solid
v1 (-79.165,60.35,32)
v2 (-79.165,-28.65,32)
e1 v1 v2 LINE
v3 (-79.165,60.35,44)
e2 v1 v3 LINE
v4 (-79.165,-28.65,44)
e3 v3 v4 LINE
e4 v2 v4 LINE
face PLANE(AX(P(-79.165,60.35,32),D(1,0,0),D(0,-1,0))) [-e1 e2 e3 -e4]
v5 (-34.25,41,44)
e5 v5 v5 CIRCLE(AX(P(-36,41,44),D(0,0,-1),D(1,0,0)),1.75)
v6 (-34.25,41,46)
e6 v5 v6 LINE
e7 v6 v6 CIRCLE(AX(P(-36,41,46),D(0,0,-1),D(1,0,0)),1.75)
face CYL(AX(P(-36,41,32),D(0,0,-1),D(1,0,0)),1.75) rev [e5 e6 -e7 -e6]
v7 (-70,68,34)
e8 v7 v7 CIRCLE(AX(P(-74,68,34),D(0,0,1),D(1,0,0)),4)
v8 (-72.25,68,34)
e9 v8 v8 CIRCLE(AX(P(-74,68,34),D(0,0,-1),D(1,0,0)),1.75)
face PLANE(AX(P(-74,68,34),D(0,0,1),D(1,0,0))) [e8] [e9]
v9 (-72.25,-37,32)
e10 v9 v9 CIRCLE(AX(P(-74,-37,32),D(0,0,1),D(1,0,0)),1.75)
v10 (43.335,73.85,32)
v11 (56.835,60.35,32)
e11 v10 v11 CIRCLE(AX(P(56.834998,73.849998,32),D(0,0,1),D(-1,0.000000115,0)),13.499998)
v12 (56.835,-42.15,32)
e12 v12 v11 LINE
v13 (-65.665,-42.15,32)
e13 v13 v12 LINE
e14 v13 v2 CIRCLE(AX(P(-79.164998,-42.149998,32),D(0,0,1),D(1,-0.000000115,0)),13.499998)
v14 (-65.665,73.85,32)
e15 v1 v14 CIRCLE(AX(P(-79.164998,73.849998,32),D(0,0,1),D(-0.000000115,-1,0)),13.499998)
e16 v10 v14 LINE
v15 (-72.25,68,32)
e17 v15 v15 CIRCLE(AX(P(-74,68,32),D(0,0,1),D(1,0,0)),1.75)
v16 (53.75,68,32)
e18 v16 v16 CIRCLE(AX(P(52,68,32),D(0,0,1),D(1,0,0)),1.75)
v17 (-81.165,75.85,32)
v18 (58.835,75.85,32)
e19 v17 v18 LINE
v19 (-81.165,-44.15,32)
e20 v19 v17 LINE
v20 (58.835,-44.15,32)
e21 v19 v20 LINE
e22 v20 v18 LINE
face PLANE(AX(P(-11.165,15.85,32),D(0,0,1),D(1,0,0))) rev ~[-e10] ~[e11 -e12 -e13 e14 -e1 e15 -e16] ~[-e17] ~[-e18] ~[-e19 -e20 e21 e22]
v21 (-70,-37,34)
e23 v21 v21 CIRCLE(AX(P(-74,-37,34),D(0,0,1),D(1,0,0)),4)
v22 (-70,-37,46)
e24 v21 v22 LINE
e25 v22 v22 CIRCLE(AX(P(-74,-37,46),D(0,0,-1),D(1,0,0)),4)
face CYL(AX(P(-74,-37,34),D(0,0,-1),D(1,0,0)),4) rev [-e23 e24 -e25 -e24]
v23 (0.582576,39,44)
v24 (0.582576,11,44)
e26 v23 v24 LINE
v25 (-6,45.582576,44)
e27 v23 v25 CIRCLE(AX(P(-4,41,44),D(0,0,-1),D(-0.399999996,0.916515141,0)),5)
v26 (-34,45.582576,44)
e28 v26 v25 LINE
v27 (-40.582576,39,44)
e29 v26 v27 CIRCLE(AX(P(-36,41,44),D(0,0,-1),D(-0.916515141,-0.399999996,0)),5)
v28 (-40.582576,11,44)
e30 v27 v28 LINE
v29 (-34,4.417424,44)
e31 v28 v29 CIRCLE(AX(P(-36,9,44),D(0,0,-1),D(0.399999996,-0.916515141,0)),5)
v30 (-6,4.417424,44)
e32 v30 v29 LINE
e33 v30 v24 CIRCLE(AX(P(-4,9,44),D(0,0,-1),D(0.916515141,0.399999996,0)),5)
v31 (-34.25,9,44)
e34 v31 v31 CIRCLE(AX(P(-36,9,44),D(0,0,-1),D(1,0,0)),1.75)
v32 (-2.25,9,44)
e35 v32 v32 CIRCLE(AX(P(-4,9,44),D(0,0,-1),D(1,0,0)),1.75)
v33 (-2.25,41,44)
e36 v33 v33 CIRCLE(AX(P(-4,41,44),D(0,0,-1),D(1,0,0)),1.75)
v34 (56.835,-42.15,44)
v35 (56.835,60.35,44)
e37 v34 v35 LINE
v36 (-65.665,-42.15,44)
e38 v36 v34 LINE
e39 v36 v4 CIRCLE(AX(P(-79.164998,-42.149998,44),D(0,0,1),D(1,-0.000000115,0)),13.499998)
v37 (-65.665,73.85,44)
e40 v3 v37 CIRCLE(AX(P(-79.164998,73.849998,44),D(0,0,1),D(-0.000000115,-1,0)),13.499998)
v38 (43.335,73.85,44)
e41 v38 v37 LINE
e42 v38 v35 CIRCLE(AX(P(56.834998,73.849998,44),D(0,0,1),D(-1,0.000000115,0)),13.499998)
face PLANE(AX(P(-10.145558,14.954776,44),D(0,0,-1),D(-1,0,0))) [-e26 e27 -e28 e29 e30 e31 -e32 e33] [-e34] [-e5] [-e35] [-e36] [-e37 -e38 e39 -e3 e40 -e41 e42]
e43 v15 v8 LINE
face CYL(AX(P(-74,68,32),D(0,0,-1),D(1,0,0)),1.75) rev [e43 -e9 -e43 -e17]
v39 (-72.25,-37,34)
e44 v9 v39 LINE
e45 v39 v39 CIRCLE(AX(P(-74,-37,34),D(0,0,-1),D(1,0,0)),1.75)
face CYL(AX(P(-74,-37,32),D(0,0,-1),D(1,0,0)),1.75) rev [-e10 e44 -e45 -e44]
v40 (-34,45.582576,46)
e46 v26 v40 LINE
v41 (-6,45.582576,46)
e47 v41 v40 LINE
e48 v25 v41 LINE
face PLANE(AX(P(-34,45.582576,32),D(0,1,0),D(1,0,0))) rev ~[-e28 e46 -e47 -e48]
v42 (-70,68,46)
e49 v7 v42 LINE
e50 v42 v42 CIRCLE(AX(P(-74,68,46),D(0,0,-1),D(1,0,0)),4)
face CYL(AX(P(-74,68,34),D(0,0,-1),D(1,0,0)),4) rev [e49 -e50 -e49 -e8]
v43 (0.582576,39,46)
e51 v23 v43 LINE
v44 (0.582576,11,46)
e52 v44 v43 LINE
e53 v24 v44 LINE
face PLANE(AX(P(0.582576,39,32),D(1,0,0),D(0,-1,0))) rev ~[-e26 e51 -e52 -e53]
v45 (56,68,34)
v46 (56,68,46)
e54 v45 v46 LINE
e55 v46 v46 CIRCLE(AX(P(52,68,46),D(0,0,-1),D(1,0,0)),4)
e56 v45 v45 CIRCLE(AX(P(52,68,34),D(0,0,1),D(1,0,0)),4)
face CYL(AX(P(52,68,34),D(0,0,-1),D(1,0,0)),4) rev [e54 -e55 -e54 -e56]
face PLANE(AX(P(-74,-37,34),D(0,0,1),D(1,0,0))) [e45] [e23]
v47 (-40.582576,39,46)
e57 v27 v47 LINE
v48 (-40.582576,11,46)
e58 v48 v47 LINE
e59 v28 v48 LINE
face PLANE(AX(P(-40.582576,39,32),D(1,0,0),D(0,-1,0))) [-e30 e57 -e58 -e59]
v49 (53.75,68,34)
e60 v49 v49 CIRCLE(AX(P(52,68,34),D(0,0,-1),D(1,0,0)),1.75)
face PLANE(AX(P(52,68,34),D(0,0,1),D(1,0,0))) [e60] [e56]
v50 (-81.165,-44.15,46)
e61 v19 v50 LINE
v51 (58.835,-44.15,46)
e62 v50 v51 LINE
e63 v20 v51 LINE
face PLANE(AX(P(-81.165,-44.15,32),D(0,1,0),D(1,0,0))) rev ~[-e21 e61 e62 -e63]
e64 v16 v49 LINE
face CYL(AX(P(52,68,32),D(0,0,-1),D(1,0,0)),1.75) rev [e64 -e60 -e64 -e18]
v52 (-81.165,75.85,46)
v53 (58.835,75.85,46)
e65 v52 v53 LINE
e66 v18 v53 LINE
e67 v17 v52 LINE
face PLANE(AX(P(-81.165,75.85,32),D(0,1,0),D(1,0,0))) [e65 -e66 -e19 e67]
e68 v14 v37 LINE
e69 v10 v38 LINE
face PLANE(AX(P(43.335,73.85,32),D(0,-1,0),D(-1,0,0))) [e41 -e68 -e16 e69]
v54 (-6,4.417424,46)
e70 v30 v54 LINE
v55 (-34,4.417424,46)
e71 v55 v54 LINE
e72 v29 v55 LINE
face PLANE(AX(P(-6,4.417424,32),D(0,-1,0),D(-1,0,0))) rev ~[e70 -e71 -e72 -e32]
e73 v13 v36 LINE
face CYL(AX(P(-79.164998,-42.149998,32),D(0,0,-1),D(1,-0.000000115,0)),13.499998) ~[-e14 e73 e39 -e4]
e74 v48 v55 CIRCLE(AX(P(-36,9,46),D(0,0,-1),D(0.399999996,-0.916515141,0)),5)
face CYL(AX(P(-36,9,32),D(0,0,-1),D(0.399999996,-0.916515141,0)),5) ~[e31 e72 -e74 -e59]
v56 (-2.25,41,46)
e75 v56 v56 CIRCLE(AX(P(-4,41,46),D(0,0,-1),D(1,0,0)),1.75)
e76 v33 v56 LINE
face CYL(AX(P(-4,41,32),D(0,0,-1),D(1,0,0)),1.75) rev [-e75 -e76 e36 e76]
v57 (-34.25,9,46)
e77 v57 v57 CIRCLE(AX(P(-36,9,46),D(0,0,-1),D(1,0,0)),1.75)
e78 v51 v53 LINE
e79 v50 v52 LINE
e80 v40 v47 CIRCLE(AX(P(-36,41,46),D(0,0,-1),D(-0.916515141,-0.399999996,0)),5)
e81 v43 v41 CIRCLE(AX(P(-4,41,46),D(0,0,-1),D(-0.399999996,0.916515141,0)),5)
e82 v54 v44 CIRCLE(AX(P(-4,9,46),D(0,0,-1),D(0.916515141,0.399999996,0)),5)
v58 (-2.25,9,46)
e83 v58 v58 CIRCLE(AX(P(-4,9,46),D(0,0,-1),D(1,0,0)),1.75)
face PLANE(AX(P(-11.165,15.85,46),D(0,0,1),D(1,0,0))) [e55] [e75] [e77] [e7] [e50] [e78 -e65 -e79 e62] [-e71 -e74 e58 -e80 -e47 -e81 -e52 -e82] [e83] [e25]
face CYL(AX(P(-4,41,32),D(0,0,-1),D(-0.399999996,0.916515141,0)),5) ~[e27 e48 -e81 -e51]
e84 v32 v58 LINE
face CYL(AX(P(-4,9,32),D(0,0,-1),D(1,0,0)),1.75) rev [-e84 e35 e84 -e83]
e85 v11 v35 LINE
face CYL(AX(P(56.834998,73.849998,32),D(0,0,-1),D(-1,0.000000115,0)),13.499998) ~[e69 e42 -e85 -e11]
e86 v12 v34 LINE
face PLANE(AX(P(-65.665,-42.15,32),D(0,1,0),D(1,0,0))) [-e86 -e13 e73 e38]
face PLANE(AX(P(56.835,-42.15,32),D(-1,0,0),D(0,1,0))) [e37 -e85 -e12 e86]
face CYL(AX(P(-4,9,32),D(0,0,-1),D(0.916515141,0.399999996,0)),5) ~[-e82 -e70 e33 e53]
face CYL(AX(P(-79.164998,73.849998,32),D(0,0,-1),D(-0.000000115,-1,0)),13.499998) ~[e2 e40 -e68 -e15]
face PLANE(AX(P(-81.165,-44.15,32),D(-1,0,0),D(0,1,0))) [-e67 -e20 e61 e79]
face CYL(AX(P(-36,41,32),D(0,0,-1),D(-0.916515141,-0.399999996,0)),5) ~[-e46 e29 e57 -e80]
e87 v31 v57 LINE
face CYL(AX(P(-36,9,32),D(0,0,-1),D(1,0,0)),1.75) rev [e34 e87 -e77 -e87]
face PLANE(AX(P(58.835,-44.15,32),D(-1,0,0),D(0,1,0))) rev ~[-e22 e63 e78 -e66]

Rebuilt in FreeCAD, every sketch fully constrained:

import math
import FreeCAD as App
import Part
import Sketcher
Q = App.Units.Quantity


def add_polygon(sketch, points):
    """Adds a closed chain of lines whose ends are joined by coincident constraints."""
    first, n = sketch.GeometryCount, len(points)
    for a, b in zip(points, points[1:] + points[:1]):
        sketch.addGeometry(Part.LineSegment(App.Vector(*a, 0), App.Vector(*b, 0)), False)
    for i in range(n):
        sketch.addConstraint(Sketcher.Constraint("Coincident", first + i, 2, first + (i + 1) % n, 1))

doc = App.newDocument("Part")
body = doc.addObject("PartDesign::Body", "Body")

sketch1 = doc.addObject("Sketcher::SketchObject", "Sketch")
body.addObject(sketch1)
sketch1.AttachmentSupport = (doc.XY_Plane, [""])
sketch1.MapMode = "FlatFace"
add_polygon(sketch1, [(-81, 76), (-81, -44), (59, -44), (59, 76)])
sketch1.addConstraint([
    Sketcher.Constraint("Vertical", 0),
    Sketcher.Constraint("Horizontal", 1),
    Sketcher.Constraint("Vertical", 2),
    Sketcher.Constraint("Horizontal", 3),
    Sketcher.Constraint("DistanceX", 1, 1, 1, 2, Q("140 mm")),
    Sketcher.Constraint("DistanceY", 0, 2, 0, 1, Q("120 mm")),
    Sketcher.Constraint("DistanceY", 0, 2, -1, 1, Q("44.15 mm")),
    Sketcher.Constraint("DistanceX", 0, 2, -1, 1, Q("81.165 mm")),
])
pad1 = doc.addObject("PartDesign::Pad", "Pad")
body.addObject(pad1)
pad1.Profile = sketch1
pad1.Length = 14

sketch2 = doc.addObject("Sketcher::SketchObject", "Sketch001")
body.addObject(sketch2)
sketch2.AttachmentSupport = (doc.XY_Plane, [""])
sketch2.MapMode = "FlatFace"
sketch2.addGeometry([
    Part.ArcOfCircle(Part.Circle(App.Vector(-79, 74, 0), App.Vector(0, 0, 1), 13), math.radians(-90), math.radians(0)),
    Part.LineSegment(App.Vector(-79, 60, 0), App.Vector(-79, -29, 0)),
    Part.ArcOfCircle(Part.Circle(App.Vector(-79, -42, 0), App.Vector(0, 0, 1), 13), math.radians(0), math.radians(90)),
    Part.LineSegment(App.Vector(-66, -42, 0), App.Vector(57, -42, 0)),
    Part.LineSegment(App.Vector(57, -42, 0), App.Vector(57, 60, 0)),
    Part.ArcOfCircle(Part.Circle(App.Vector(57, 74, 0), App.Vector(0, 0, 1), 13), math.radians(180), math.radians(270)),
    Part.LineSegment(App.Vector(43, 74, 0), App.Vector(-66, 74, 0)),
], False)
sketch2.addConstraint([
    Sketcher.Constraint("Coincident", 0, 1, 1, 1),
    Sketcher.Constraint("Coincident", 1, 2, 2, 2),
    Sketcher.Constraint("Coincident", 2, 1, 3, 1),
    Sketcher.Constraint("Coincident", 3, 2, 4, 1),
    Sketcher.Constraint("Coincident", 4, 2, 5, 2),
    Sketcher.Constraint("Coincident", 5, 1, 6, 1),
    Sketcher.Constraint("Coincident", 6, 2, 0, 2),
    Sketcher.Constraint("Vertical", 1),
    Sketcher.Constraint("Horizontal", 3),
    Sketcher.Constraint("Vertical", 4),
    Sketcher.Constraint("Horizontal", 6),
    Sketcher.Constraint("Equal", 0, 2),
    Sketcher.Constraint("Equal", 2, 5),
    Sketcher.Constraint("Horizontal", 0, 3, 5, 3),
    Sketcher.Constraint("Horizontal", 0, 3, 5, 1),
    Sketcher.Constraint("Vertical", 0, 3, 2, 3),
    Sketcher.Constraint("Vertical", 2, 3, 0, 1),
    Sketcher.Constraint("Vertical", 5, 3, 3, 2),
    Sketcher.Constraint("Radius", 0, Q("13.499998 mm")),
    Sketcher.Constraint("DistanceX", 6, 2, 6, 1, Q("109 mm")),
    Sketcher.Constraint("DistanceY", 1, 2, 1, 1, Q("89 mm")),
    Sketcher.Constraint("DistanceY", 4, 1, 4, 2, Q("102.5 mm")),
    Sketcher.Constraint("DistanceY", -1, 1, 0, 3, Q("73.849998 mm")),
    Sketcher.Constraint("DistanceX", 0, 3, -1, 1, Q("79.164998 mm")),
])
pocket1 = doc.addObject("PartDesign::Pocket", "Pocket")
body.addObject(pocket1)
pocket1.Profile = sketch2
pocket1.Length = 12
pocket1.Reversed = True

sketch3 = doc.addObject("Sketcher::SketchObject", "Sketch002")
body.addObject(sketch3)
sketch3.AttachmentSupport = (doc.XY_Plane, [""])
sketch3.MapMode = "FlatFace"
sketch3.addGeometry([
    Part.Circle(App.Vector(-74, 68, 0), App.Vector(0, 0, 1), 1.8),
    Part.Circle(App.Vector(52, 68, 0), App.Vector(0, 0, 1), 1.8),
    Part.Circle(App.Vector(-74, -37, 0), App.Vector(0, 0, 1), 1.8),
], False)
sketch3.addConstraint([
    Sketcher.Constraint("Equal", 0, 1),
    Sketcher.Constraint("Equal", 1, 2),
    Sketcher.Constraint("Horizontal", 0, 3, 1, 3),
    Sketcher.Constraint("Vertical", 0, 3, 2, 3),
    Sketcher.Constraint("Diameter", 0, Q("3.5 mm")),
    Sketcher.Constraint("DistanceX", 0, 3, -1, 1, Q("74 mm")),
    Sketcher.Constraint("DistanceY", -1, 1, 0, 3, Q("68 mm")),
    Sketcher.Constraint("DistanceX", -1, 1, 1, 3, Q("52 mm")),
    Sketcher.Constraint("DistanceY", 2, 3, -1, 1, Q("37 mm")),
])
pocket2 = doc.addObject("PartDesign::Pocket", "Pocket001")
body.addObject(pocket2)
pocket2.Profile = sketch3
pocket2.Type = "ThroughAll"
pocket2.Midplane = True

sketch4 = doc.addObject("Sketcher::SketchObject", "Sketch003")
body.addObject(sketch4)
sketch4.AttachmentSupport = (doc.XY_Plane, [""])
sketch4.MapMode = "FlatFace"
sketch4.AttachmentOffset = App.Placement(App.Vector(0, 0, 2), App.Rotation())
sketch4.addGeometry([
    Part.Circle(App.Vector(-74, 68, 0), App.Vector(0, 0, 1), 4),
    Part.Circle(App.Vector(52, 68, 0), App.Vector(0, 0, 1), 4),
    Part.Circle(App.Vector(-74, -37, 0), App.Vector(0, 0, 1), 4),
], False)
sketch4.addConstraint([
    Sketcher.Constraint("Equal", 0, 1),
    Sketcher.Constraint("Equal", 1, 2),
    Sketcher.Constraint("Horizontal", 0, 3, 1, 3),
    Sketcher.Constraint("Vertical", 0, 3, 2, 3),
    Sketcher.Constraint("Diameter", 0, Q("8 mm")),
    Sketcher.Constraint("DistanceX", 0, 3, -1, 1, Q("74 mm")),
    Sketcher.Constraint("DistanceY", -1, 1, 0, 3, Q("68 mm")),
    Sketcher.Constraint("DistanceX", -1, 1, 1, 3, Q("52 mm")),
    Sketcher.Constraint("DistanceY", 2, 3, -1, 1, Q("37 mm")),
])
pocket3 = doc.addObject("PartDesign::Pocket", "Pocket002")
body.addObject(pocket3)
pocket3.Profile = sketch4
pocket3.Type = "ThroughAll"
pocket3.Reversed = True

sketch5 = doc.addObject("Sketcher::SketchObject", "Sketch004")
body.addObject(sketch5)
sketch5.AttachmentSupport = (doc.XY_Plane, [""])
sketch5.MapMode = "FlatFace"
sketch5.addGeometry([
    Part.Circle(App.Vector(-36, 41, 0), App.Vector(0, 0, 1), 1.8),
    Part.Circle(App.Vector(-4, 41, 0), App.Vector(0, 0, 1), 1.8),
    Part.Circle(App.Vector(-36, 9, 0), App.Vector(0, 0, 1), 1.8),
    Part.Circle(App.Vector(-4, 9, 0), App.Vector(0, 0, 1), 1.8),
    Part.ArcOfCircle(Part.Circle(App.Vector(-36, 41, 0), App.Vector(0, 0, 1), 5), math.radians(-156), math.radians(66)),
    Part.LineSegment(App.Vector(-40.6, 39, 0), App.Vector(-40.6, 11, 0)),
    Part.ArcOfCircle(Part.Circle(App.Vector(-36, 9, 0), App.Vector(0, 0, 1), 5), math.radians(-66), math.radians(156)),
    Part.LineSegment(App.Vector(-34, 4.4, 0), App.Vector(-6, 4.4, 0)),
    Part.ArcOfCircle(Part.Circle(App.Vector(-4, 9, 0), App.Vector(0, 0, 1), 5), math.radians(24), math.radians(246)),
    Part.LineSegment(App.Vector(0.6, 11, 0), App.Vector(0.6, 39, 0)),
    Part.ArcOfCircle(Part.Circle(App.Vector(-4, 41, 0), App.Vector(0, 0, 1), 5), math.radians(114), math.radians(336)),
    Part.LineSegment(App.Vector(-6, 45.6, 0), App.Vector(-34, 45.6, 0)),
], False)
sketch5.addConstraint([
    Sketcher.Constraint("Coincident", 4, 1, 5, 1),
    Sketcher.Constraint("Coincident", 5, 2, 6, 2),
    Sketcher.Constraint("Coincident", 6, 1, 7, 1),
    Sketcher.Constraint("Coincident", 7, 2, 8, 2),
    Sketcher.Constraint("Coincident", 8, 1, 9, 1),
    Sketcher.Constraint("Coincident", 9, 2, 10, 2),
    Sketcher.Constraint("Coincident", 10, 1, 11, 1),
    Sketcher.Constraint("Coincident", 11, 2, 4, 2),
    Sketcher.Constraint("Vertical", 5),
    Sketcher.Constraint("Horizontal", 7),
    Sketcher.Constraint("Vertical", 9),
    Sketcher.Constraint("Horizontal", 11),
    Sketcher.Constraint("Coincident", 4, 3, 0, 3),
    Sketcher.Constraint("Coincident", 6, 3, 2, 3),
    Sketcher.Constraint("Coincident", 8, 3, 3, 3),
    Sketcher.Constraint("Coincident", 10, 3, 1, 3),
    Sketcher.Constraint("Equal", 0, 1),
    Sketcher.Constraint("Equal", 1, 2),
    Sketcher.Constraint("Equal", 2, 3),
    Sketcher.Constraint("Equal", 4, 6),
    Sketcher.Constraint("Equal", 6, 8),
    Sketcher.Constraint("Equal", 8, 10),
    Sketcher.Constraint("Horizontal", 0, 3, 1, 3),
    Sketcher.Constraint("Horizontal", 2, 3, 3, 3),
    Sketcher.Constraint("Horizontal", 5, 2, 8, 1),
    Sketcher.Constraint("Horizontal", 4, 1, 9, 2),
    Sketcher.Constraint("Vertical", 0, 3, 2, 3),
    Sketcher.Constraint("Vertical", 7, 2, 10, 1),
    Sketcher.Constraint("Equal", 11, 5),
    Sketcher.Constraint("Radius", 4, Q("5 mm")),
    Sketcher.Constraint("Diameter", 0, Q("3.5 mm")),
    Sketcher.Constraint("DistanceX", 7, 1, 7, 2, Q("28 mm")),
    Sketcher.Constraint("DistanceX", 0, 3, -1, 1, Q("36 mm")),
    Sketcher.Constraint("DistanceY", -1, 1, 0, 3, Q("41 mm")),
    Sketcher.Constraint("DistanceX", 1, 3, -1, 1, Q("4 mm")),
    Sketcher.Constraint("DistanceY", -1, 1, 2, 3, Q("9 mm")),
])
pocket4 = doc.addObject("PartDesign::Pocket", "Pocket003")
body.addObject(pocket4)
pocket4.Profile = sketch5
pocket4.Type = "ThroughAll"
pocket4.Reversed = True
body2 = doc.addObject("PartDesign::Body", "Body001")
doc.recompute()

body.Placement = App.Placement(App.Vector(0, 0, 32), App.Rotation(App.Vector(0, 0, 1), 0))
boolean = doc.addObject("PartDesign::Boolean", "Boolean")
body2.addObject(boolean)
boolean.Type = "Fuse"
boolean.addObjects([body])

doc.recompute()
